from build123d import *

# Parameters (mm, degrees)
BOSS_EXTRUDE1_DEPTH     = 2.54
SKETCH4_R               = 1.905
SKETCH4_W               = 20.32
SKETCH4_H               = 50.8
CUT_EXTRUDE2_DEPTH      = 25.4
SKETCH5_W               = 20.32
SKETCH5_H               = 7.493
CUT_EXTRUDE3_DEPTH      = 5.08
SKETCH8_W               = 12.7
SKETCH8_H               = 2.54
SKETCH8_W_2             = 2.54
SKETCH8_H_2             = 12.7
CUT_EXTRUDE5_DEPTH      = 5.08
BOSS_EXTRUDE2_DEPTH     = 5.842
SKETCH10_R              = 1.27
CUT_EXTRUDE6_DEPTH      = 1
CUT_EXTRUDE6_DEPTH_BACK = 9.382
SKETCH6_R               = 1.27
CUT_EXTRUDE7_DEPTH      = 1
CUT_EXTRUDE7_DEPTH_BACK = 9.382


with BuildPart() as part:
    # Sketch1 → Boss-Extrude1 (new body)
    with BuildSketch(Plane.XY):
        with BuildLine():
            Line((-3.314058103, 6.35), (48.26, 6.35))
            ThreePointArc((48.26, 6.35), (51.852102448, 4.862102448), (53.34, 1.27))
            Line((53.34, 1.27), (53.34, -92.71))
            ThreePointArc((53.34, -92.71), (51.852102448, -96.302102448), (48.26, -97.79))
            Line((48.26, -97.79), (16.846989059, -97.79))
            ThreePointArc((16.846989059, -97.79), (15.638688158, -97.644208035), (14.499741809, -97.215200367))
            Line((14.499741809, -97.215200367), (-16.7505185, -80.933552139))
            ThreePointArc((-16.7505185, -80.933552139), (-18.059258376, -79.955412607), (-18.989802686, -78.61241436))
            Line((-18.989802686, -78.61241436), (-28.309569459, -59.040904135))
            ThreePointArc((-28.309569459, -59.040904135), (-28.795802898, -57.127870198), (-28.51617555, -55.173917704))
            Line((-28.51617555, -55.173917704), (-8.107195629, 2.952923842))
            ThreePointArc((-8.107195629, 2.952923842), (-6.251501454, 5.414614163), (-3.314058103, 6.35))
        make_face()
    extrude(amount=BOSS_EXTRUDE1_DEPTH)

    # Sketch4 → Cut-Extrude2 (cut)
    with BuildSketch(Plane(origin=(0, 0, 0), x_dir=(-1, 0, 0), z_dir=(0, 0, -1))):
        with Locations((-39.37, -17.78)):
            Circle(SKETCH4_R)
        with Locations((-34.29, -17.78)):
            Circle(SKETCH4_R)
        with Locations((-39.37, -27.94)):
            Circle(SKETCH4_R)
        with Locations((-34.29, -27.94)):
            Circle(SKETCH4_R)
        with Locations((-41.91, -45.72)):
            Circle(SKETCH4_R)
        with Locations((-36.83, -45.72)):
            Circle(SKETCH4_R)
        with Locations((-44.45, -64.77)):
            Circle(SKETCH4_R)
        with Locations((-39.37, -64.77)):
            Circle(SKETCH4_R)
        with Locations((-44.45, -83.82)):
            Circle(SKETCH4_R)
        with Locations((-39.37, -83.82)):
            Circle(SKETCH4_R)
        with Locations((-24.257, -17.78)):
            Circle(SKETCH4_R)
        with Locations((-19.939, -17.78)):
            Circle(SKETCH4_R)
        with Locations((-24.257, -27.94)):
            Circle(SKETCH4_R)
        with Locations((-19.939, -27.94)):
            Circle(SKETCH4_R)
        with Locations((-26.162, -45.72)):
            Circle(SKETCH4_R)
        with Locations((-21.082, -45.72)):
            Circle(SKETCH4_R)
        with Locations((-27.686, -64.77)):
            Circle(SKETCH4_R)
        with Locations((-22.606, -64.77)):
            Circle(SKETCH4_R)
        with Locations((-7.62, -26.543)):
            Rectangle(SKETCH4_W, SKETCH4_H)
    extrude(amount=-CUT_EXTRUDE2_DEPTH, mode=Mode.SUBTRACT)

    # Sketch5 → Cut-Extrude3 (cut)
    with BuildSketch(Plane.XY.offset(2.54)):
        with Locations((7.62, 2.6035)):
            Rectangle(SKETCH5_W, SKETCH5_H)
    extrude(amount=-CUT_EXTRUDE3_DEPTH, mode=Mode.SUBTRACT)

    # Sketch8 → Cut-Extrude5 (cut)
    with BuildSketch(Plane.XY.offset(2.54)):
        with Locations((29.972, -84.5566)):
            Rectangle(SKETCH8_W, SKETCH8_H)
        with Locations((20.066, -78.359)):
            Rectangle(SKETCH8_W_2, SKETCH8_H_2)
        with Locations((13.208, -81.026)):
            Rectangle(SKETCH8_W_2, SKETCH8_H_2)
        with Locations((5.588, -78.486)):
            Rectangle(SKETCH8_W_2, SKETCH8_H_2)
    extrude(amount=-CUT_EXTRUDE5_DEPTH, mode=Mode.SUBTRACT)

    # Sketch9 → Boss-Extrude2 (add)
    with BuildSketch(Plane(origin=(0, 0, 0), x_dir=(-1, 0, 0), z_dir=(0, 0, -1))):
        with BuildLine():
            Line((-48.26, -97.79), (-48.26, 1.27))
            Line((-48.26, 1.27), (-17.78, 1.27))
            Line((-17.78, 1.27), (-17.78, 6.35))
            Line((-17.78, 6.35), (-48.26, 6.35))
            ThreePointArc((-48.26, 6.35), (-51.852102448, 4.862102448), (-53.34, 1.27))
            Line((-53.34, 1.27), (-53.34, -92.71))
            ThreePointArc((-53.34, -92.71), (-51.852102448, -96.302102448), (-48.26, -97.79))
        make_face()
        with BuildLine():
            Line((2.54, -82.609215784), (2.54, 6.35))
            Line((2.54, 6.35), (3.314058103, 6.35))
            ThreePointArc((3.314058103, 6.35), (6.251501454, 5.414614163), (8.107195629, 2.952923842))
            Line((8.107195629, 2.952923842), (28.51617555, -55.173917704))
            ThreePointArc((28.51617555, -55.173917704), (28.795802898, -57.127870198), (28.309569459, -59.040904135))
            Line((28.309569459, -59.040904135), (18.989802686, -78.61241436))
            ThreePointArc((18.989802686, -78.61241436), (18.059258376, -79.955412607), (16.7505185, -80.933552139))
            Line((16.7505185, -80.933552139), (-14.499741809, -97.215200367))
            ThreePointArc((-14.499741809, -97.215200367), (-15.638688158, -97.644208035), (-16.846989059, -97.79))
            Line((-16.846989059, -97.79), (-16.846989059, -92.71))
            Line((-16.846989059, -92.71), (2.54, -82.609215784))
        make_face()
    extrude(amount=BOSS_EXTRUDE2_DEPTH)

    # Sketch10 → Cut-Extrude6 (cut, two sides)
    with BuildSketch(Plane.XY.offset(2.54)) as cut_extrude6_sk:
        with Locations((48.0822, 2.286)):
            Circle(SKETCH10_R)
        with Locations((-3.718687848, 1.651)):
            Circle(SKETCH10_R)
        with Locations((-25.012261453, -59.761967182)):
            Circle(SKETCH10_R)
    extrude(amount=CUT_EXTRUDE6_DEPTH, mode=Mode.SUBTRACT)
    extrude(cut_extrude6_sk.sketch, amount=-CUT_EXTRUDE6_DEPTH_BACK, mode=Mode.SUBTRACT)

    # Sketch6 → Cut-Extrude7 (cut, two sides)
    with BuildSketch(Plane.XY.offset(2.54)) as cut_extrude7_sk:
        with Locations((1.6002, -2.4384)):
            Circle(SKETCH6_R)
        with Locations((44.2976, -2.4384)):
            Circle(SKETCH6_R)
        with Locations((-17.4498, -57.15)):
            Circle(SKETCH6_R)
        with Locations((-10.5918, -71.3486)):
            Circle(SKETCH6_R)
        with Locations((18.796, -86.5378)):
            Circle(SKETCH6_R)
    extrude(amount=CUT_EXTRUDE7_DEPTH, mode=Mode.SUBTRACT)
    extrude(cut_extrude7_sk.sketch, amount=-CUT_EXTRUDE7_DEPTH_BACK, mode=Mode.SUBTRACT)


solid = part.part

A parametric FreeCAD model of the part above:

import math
import FreeCAD as App
import Part
import Sketcher
from FreeCAD import Vector
Q = App.Units.Quantity

doc = App.newDocument("Part")
body = doc.addObject("PartDesign::Body", "Body")

# Sketch on XY plane
sketch1 = doc.addObject("Sketcher::SketchObject", "Sketch")
body.addObject(sketch1)
sketch1.AttachmentSupport = (doc.XY_Plane, [""])
sketch1.MapMode = "FlatFace"
sketch1.addGeometry([
    Part.LineSegment(Vector(48.26, 6.35, 0), Vector(-3.314058, 6.35, 0)),  # 0
    Part.ArcOfCircle(Part.Circle(Vector(-3.314058, 1.27, 0), Vector(0, 0, 1), 5.08), math.radians(90), math.radians(160.653259)),  # 1
    Part.LineSegment(Vector(-8.107196, 2.952924, 0), Vector(-28.516176, -55.173918, 0)),  # 2
    Part.ArcOfCircle(Part.Circle(Vector(-23.723038, -56.856842, 0), Vector(0, 0, 1), 5.08), math.radians(160.653259), math.radians(205.463345)),  # 3
    Part.LineSegment(Vector(-28.309569, -59.040904, 0), Vector(-18.989803, -78.612414, 0)),  # 4
    Part.ArcOfCircle(Part.Circle(Vector(-14.403271, -76.428352, 0), Vector(0, 0, 1), 5.08), math.radians(-154.536655), math.radians(-117.519892)),  # 5
    Part.LineSegment(Vector(-16.750518, -80.933552, 0), Vector(14.499742, -97.2152, 0)),  # 6
    Part.ArcOfCircle(Part.Circle(Vector(16.846989, -92.71, 0), Vector(0, 0, 1), 5.08), math.radians(-117.519892), math.radians(-90)),  # 7
    Part.LineSegment(Vector(16.846989, -97.79, 0), Vector(48.26, -97.79, 0)),  # 8
    Part.ArcOfCircle(Part.Circle(Vector(48.26, -92.71, 0), Vector(0, 0, 1), 5.08), math.radians(-90), math.radians(0)),  # 9
    Part.LineSegment(Vector(53.34, -92.71, 0), Vector(53.34, 1.27, 0)),  # 10
    Part.ArcOfCircle(Part.Circle(Vector(48.26, 1.27, 0), Vector(0, 0, 1), 5.08), math.radians(0), math.radians(90)),  # 11
], False)
sketch1.addConstraint([
    Sketcher.Constraint("Tangent", 0, 2, 1, 1),
    Sketcher.Constraint("Tangent", 1, 2, 2, 1),
    Sketcher.Constraint("Tangent", 2, 2, 3, 1),
    Sketcher.Constraint("Tangent", 3, 2, 4, 1),
    Sketcher.Constraint("Tangent", 4, 2, 5, 1),
    Sketcher.Constraint("Tangent", 5, 2, 6, 1),
    Sketcher.Constraint("Tangent", 6, 2, 7, 1),
    Sketcher.Constraint("Tangent", 7, 2, 8, 1),
    Sketcher.Constraint("Tangent", 8, 2, 9, 1),
    Sketcher.Constraint("Tangent", 9, 2, 10, 1),
    Sketcher.Constraint("Tangent", 10, 2, 11, 1),
    Sketcher.Constraint("Tangent", 11, 2, 0, 1),
    Sketcher.Constraint("Horizontal", 0),
    Sketcher.Constraint("Horizontal", 8),
    Sketcher.Constraint("Vertical", 10),
    Sketcher.Constraint("Equal", 1, 3),
    Sketcher.Constraint("Equal", 3, 5),
    Sketcher.Constraint("Equal", 5, 7),
    Sketcher.Constraint("Equal", 7, 9),
    Sketcher.Constraint("Equal", 9, 11),
    Sketcher.Constraint("Radius", 1, Q("0.2 in")),
    Sketcher.Constraint("DistanceY", 10, 1, 10, 2, Q("3.7 in")),
    Sketcher.Constraint("DistanceX", -1, 1, 9, 3, Q("1.9 in")),
    Sketcher.Constraint("DistanceY", -1, 1, 1, 3, Q("0.05 in")),
    Sketcher.Constraint("DistanceX", 0, 2, 0, 1, 51.574058),
    Sketcher.Constraint("DistanceX", 8, 1, 8, 2, 31.413011),
    Sketcher.Constraint("DistanceY", 6, 2, -1, 1, 97.2152),
    Sketcher.Constraint("DistanceX", 3, 2, 5, 3, 13.906298),
    Sketcher.Constraint("Distance", 2, 61.60565),
    Sketcher.Constraint("Distance", 6, 35.23735),
])
pad1 = doc.addObject("PartDesign::Pad", "Pad")
body.addObject(pad1)
pad1.Profile = sketch1
pad1.Length = Q("0.1 in")

# Sketch on XY plane
sketch2 = doc.addObject("Sketcher::SketchObject", "Sketch001")
body.addObject(sketch2)
sketch2.AttachmentSupport = (doc.XY_Plane, [""])
sketch2.MapMode = "FlatFace"
sketch2.addGeometry([
    Part.Circle(Vector(39.37, -17.78, 0), Vector(0, 0, 1), 1.905),  # 0
    Part.Circle(Vector(34.29, -17.78, 0), Vector(0, 0, 1), 1.905),  # 1
    Part.Circle(Vector(39.37, -27.94, 0), Vector(0, 0, 1), 1.905),  # 2
    Part.Circle(Vector(34.29, -27.94, 0), Vector(0, 0, 1), 1.905),  # 3
    Part.Circle(Vector(41.91, -45.72, 0), Vector(0, 0, 1), 1.905),  # 4
    Part.Circle(Vector(36.83, -45.72, 0), Vector(0, 0, 1), 1.905),  # 5
    Part.Circle(Vector(44.45, -64.77, 0), Vector(0, 0, 1), 1.905),  # 6
    Part.Circle(Vector(39.37, -64.77, 0), Vector(0, 0, 1), 1.905),  # 7
    Part.Circle(Vector(44.45, -83.82, 0), Vector(0, 0, 1), 1.905),  # 8
    Part.Circle(Vector(39.37, -83.82, 0), Vector(0, 0, 1), 1.905),  # 9
    Part.Circle(Vector(24.257, -17.78, 0), Vector(0, 0, 1), 1.905),  # 10
    Part.Circle(Vector(19.939, -17.78, 0), Vector(0, 0, 1), 1.905),  # 11
    Part.Circle(Vector(24.257, -27.94, 0), Vector(0, 0, 1), 1.905),  # 12
    Part.Circle(Vector(19.939, -27.94, 0), Vector(0, 0, 1), 1.905),  # 13
    Part.Circle(Vector(26.162, -45.72, 0), Vector(0, 0, 1), 1.905),  # 14
    Part.Circle(Vector(21.082, -45.72, 0), Vector(0, 0, 1), 1.905),  # 15
    Part.Circle(Vector(27.686, -64.77, 0), Vector(0, 0, 1), 1.905),  # 16
    Part.Circle(Vector(22.606, -64.77, 0), Vector(0, 0, 1), 1.905),  # 17
    Part.LineSegment(Vector(17.78, -1.143, 0), Vector(17.78, -51.943, 0)),  # 18
    Part.LineSegment(Vector(17.78, -51.943, 0), Vector(-2.54, -51.943, 0)),  # 19
    Part.LineSegment(Vector(-2.54, -51.943, 0), Vector(-2.54, -1.143, 0)),  # 20
    Part.LineSegment(Vector(-2.54, -1.143, 0), Vector(17.78, -1.143, 0)),  # 21
], False)
sketch2.addConstraint([
    Sketcher.Constraint("Coincident", 18, 2, 19, 1),
    Sketcher.Constraint("Coincident", 19, 2, 20, 1),
    Sketcher.Constraint("Coincident", 20, 2, 21, 1),
    Sketcher.Constraint("Coincident", 21, 2, 18, 1),
    Sketcher.Constraint("Vertical", 18),
    Sketcher.Constraint("Horizontal", 19),
    Sketcher.Constraint("Vertical", 20),
    Sketcher.Constraint("Horizontal", 21),
    Sketcher.Constraint("Equal", 0, 1),
    Sketcher.Constraint("Equal", 1, 2),
    Sketcher.Constraint("Equal", 2, 3),
    Sketcher.Constraint("Equal", 3, 4),
    Sketcher.Constraint("Equal", 4, 5),
    Sketcher.Constraint("Equal", 5, 6),
    Sketcher.Constraint("Equal", 6, 7),
    Sketcher.Constraint("Equal", 7, 8),
    Sketcher.Constraint("Equal", 8, 9),
    Sketcher.Constraint("Equal", 9, 10),
    Sketcher.Constraint("Equal", 10, 11),
    Sketcher.Constraint("Equal", 11, 12),
    Sketcher.Constraint("Equal", 12, 13),
    Sketcher.Constraint("Equal", 13, 14),
    Sketcher.Constraint("Equal", 14, 15),
    Sketcher.Constraint("Equal", 15, 16),
    Sketcher.Constraint("Equal", 16, 17),
    Sketcher.Constraint("Horizontal", 0, 3, 1, 3),
    Sketcher.Constraint("Horizontal", 2, 3, 3, 3),
    Sketcher.Constraint("Horizontal", 4, 3, 5, 3),
    Sketcher.Constraint("Horizontal", 6, 3, 7, 3),
    Sketcher.Constraint("Horizontal", 8, 3, 9, 3),
    Sketcher.Constraint("Horizontal", 1, 3, 10, 3),
    Sketcher.Constraint("Horizontal", 10, 3, 11, 3),
    Sketcher.Constraint("Horizontal", 3, 3, 12, 3),
    Sketcher.Constraint("Horizontal", 12, 3, 13, 3),
    Sketcher.Constraint("Horizontal", 5, 3, 14, 3),
    Sketcher.Constraint("Horizontal", 14, 3, 15, 3),
    Sketcher.Constraint("Horizontal", 7, 3, 16, 3),
    Sketcher.Constraint("Horizontal", 16, 3, 17, 3),
    Sketcher.Constraint("Vertical", 0, 3, 2, 3),
    Sketcher.Constraint("Vertical", 1, 3, 3, 3),
    Sketcher.Constraint("Vertical", 2, 3, 7, 3),
    Sketcher.Constraint("Vertical", 6, 3, 8, 3),
    Sketcher.Constraint("Vertical", 7, 3, 9, 3),
    Sketcher.Constraint("Vertical", 10, 3, 12, 3),
    Sketcher.Constraint("Vertical", 11, 3, 13, 3),
    Sketcher.Constraint("Diameter", 0, Q("0.15 in")),
    Sketcher.Constraint("DistanceY", 18, 2, 18, 1, Q("2 in")),
    Sketcher.Constraint("DistanceX", 19, 2, 19, 1, Q("0.8 in")),
    Sketcher.Constraint("DistanceY", 0, 3, -1, 1, Q("0.7 in")),
    Sketcher.Constraint("DistanceY", 2, 3, -1, 1, Q("1.1 in")),
    Sketcher.Constraint("DistanceY", 4, 3, -1, 1, Q("1.8 in")),
    Sketcher.Constraint("DistanceY", 8, 3, -1, 1, Q("3.3 in")),
    Sketcher.Constraint("DistanceX", -1, 1, 18, 2, Q("0.7 in")),
    Sketcher.Constraint("DistanceX", 1, 3, 0, 3, Q("0.2 in")),
    Sketcher.Constraint("DistanceX", 2, 3, 4, 3, Q("0.1 in")),
    Sketcher.Constraint("DistanceX", 5, 3, 4, 3, Q("0.2 in")),
    Sketcher.Constraint("DistanceX", 4, 3, 6, 3, Q("0.1 in")),
    Sketcher.Constraint("DistanceX", 15, 3, 14, 3, Q("0.2 in")),
    Sketcher.Constraint("DistanceX", 17, 3, 16, 3, Q("0.2 in")),
    Sketcher.Constraint("DistanceX", -1, 1, 0, 3, Q("1.55 in")),
    Sketcher.Constraint("DistanceY", 6, 3, -1, 1, Q("2.55 in")),
    Sketcher.Constraint("DistanceX", -1, 1, 14, 3, Q("1.03 in")),
    Sketcher.Constraint("DistanceX", -1, 1, 16, 3, Q("1.09 in")),
    Sketcher.Constraint("DistanceX", 11, 3, 10, 3, Q("0.17 in")),
    Sketcher.Constraint("DistanceX", -1, 1, 10, 3, Q("0.955 in")),
    Sketcher.Constraint("DistanceY", 18, 2, -1, 1, Q("2.045 in")),
])
pocket1 = doc.addObject("PartDesign::Pocket", "Pocket")
body.addObject(pocket1)
pocket1.Profile = sketch2
pocket1.Length = Q("1 in")
pocket1.Reversed = True

# Sketch on XY plane
sketch3 = doc.addObject("Sketcher::SketchObject", "Sketch002")
body.addObject(sketch3)
sketch3.AttachmentSupport = (doc.XY_Plane, [""])
sketch3.MapMode = "FlatFace"
sketch3.AttachmentOffset = App.Placement(Vector(0, 0, 0.1 * 25.4), App.Rotation())
sketch3.addGeometry([
    Part.LineSegment(Vector(-2.54, 6.35, 0), Vector(-2.54, -1.143, 0)),
    Part.LineSegment(Vector(-2.54, -1.143, 0), Vector(17.78, -1.143, 0)),
    Part.LineSegment(Vector(17.78, -1.143, 0), Vector(17.78, 6.35, 0)),
    Part.LineSegment(Vector(17.78, 6.35, 0), Vector(-2.54, 6.35, 0)),
], False)
sketch3.addConstraint([
    Sketcher.Constraint("Coincident", 0, 2, 1, 1),
    Sketcher.Constraint("Coincident", 1, 2, 2, 1),
    Sketcher.Constraint("Coincident", 2, 2, 3, 1),
    Sketcher.Constraint("Coincident", 3, 2, 0, 1),
    Sketcher.Constraint("Vertical", 0),
    Sketcher.Constraint("Horizontal", 1),
    Sketcher.Constraint("Vertical", 2),
    Sketcher.Constraint("Horizontal", 3),
    Sketcher.Constraint("DistanceX", 1, 1, 1, 2, Q("0.8 in")),
    Sketcher.Constraint("DistanceX", 0, 2, -1, 1, Q("0.1 in")),
    Sketcher.Constraint("DistanceY", 0, 2, 0, 1, Q("0.295 in")),
    Sketcher.Constraint("DistanceY", -1, 1, 2, 2, Q("0.25 in")),
])
pocket2 = doc.addObject("PartDesign::Pocket", "Pocket001")
body.addObject(pocket2)
pocket2.Profile = sketch3
pocket2.Length = Q("0.2 in")

# Sketch on XY plane
sketch4 = doc.addObject("Sketcher::SketchObject", "Sketch003")
body.addObject(sketch4)
sketch4.AttachmentSupport = (doc.XY_Plane, [""])
sketch4.MapMode = "FlatFace"
sketch4.AttachmentOffset = App.Placement(Vector(0, 0, 0.1 * 25.4), App.Rotation())
sketch4.addGeometry([
    Part.LineSegment(Vector(23.622, -83.2866, 0), Vector(23.622, -85.8266, 0)),  # 0
    Part.LineSegment(Vector(23.622, -85.8266, 0), Vector(36.322, -85.8266, 0)),  # 1
    Part.LineSegment(Vector(36.322, -85.8266, 0), Vector(36.322, -83.2866, 0)),  # 2
    Part.LineSegment(Vector(36.322, -83.2866, 0), Vector(23.622, -83.2866, 0)),  # 3
    Part.LineSegment(Vector(18.796, -72.009, 0), Vector(18.796, -84.709, 0)),  # 4
    Part.LineSegment(Vector(18.796, -84.709, 0), Vector(21.336, -84.709, 0)),  # 5
    Part.LineSegment(Vector(21.336, -84.709, 0), Vector(21.336, -72.009, 0)),  # 6
    Part.LineSegment(Vector(21.336, -72.009, 0), Vector(18.796, -72.009, 0)),  # 7
    Part.LineSegment(Vector(11.938, -74.676, 0), Vector(11.938, -87.376, 0)),  # 8
    Part.LineSegment(Vector(11.938, -87.376, 0), Vector(14.478, -87.376, 0)),  # 9
    Part.LineSegment(Vector(14.478, -87.376, 0), Vector(14.478, -74.676, 0)),  # 10
    Part.LineSegment(Vector(14.478, -74.676, 0), Vector(11.938, -74.676, 0)),  # 11
    Part.LineSegment(Vector(4.318, -72.136, 0), Vector(4.318, -84.836, 0)),  # 12
    Part.LineSegment(Vector(4.318, -84.836, 0), Vector(6.858, -84.836, 0)),  # 13
    Part.LineSegment(Vector(6.858, -84.836, 0), Vector(6.858, -72.136, 0)),  # 14
    Part.LineSegment(Vector(6.858, -72.136, 0), Vector(4.318, -72.136, 0)),  # 15
], False)
sketch4.addConstraint([
    Sketcher.Constraint("Coincident", 0, 2, 1, 1),
    Sketcher.Constraint("Coincident", 1, 2, 2, 1),
    Sketcher.Constraint("Coincident", 2, 2, 3, 1),
    Sketcher.Constraint("Coincident", 3, 2, 0, 1),
    Sketcher.Constraint("Coincident", 4, 2, 5, 1),
    Sketcher.Constraint("Coincident", 5, 2, 6, 1),
    Sketcher.Constraint("Coincident", 6, 2, 7, 1),
    Sketcher.Constraint("Coincident", 7, 2, 4, 1),
    Sketcher.Constraint("Coincident", 8, 2, 9, 1),
    Sketcher.Constraint("Coincident", 9, 2, 10, 1),
    Sketcher.Constraint("Coincident", 10, 2, 11, 1),
    Sketcher.Constraint("Coincident", 11, 2, 8, 1),
    Sketcher.Constraint("Coincident", 12, 2, 13, 1),
    Sketcher.Constraint("Coincident", 13, 2, 14, 1),
    Sketcher.Constraint("Coincident", 14, 2, 15, 1),
    Sketcher.Constraint("Coincident", 15, 2, 12, 1),
    Sketcher.Constraint("Vertical", 0),
    Sketcher.Constraint("Horizontal", 1),
    Sketcher.Constraint("Vertical", 2),
    Sketcher.Constraint("Horizontal", 3),
    Sketcher.Constraint("Vertical", 4),
    Sketcher.Constraint("Horizontal", 5),
    Sketcher.Constraint("Vertical", 6),
    Sketcher.Constraint("Horizontal", 7),
    Sketcher.Constraint("Vertical", 8),
    Sketcher.Constraint("Horizontal", 9),
    Sketcher.Constraint("Vertical", 10),
    Sketcher.Constraint("Horizontal", 11),
    Sketcher.Constraint("Vertical", 12),
    Sketcher.Constraint("Horizontal", 13),
    Sketcher.Constraint("Vertical", 14),
    Sketcher.Constraint("Horizontal", 15),
    Sketcher.Constraint("Equal", 7, 9),
    Sketcher.Constraint("Equal", 11, 13),
    Sketcher.Constraint("Equal", 15, 0),
    Sketcher.Constraint("Equal", 3, 4),
    Sketcher.Constraint("Equal", 6, 8),
    Sketcher.Constraint("Equal", 10, 12),
    Sketcher.Constraint("DistanceX", 1, 1, 1, 2, Q("0.5 in")),
    Sketcher.Constraint("DistanceX", 5, 1, 5, 2, Q("0.1 in")),
    Sketcher.Constraint("DistanceX", 12, 2, 8, 2, Q("0.3 in")),
    Sketcher.Constraint("DistanceY", 8, 2, 12, 2, Q("0.1 in")),
    Sketcher.Constraint("DistanceX", -1, 1, 0, 2, Q("0.93 in")),
    Sketcher.Constraint("DistanceX", -1, 1, 4, 2, Q("0.74 in")),
    Sketcher.Constraint("DistanceX", -1, 1, 8, 2, Q("0.47 in")),
    Sketcher.Constraint("DistanceY", 8, 2, -1, 1, Q("3.44 in")),
    Sketcher.Constraint("DistanceY", 0, 2, -1, 1, Q("3.379 in")),
    Sketcher.Constraint("DistanceY", 4, 2, -1, 1, Q("3.335 in")),
])
pocket3 = doc.addObject("PartDesign::Pocket", "Pocket002")
body.addObject(pocket3)
pocket3.Profile = sketch4
pocket3.Length = Q("0.2 in")

# Sketch on XY plane
sketch5 = doc.addObject("Sketcher::SketchObject", "Sketch004")
body.addObject(sketch5)
sketch5.AttachmentSupport = (doc.XY_Plane, [""])
sketch5.MapMode = "FlatFace"
sketch5.addGeometry([
    Part.LineSegment(Vector(48.26, -97.79, 0), Vector(48.26, 1.27, 0)),  # 0
    Part.LineSegment(Vector(48.26, 1.27, 0), Vector(17.78, 1.27, 0)),  # 1
    Part.LineSegment(Vector(17.78, 1.27, 0), Vector(17.78, 6.35, 0)),  # 2
    Part.LineSegment(Vector(17.78, 6.35, 0), Vector(48.26, 6.35, 0)),  # 3
    Part.ArcOfCircle(Part.Circle(Vector(48.26, 1.27, 0), Vector(0, 0, 1), 5.08), math.radians(0), math.radians(90)),  # 4
    Part.LineSegment(Vector(53.34, 1.27, 0), Vector(53.34, -92.71, 0)),  # 5
    Part.ArcOfCircle(Part.Circle(Vector(48.26, -92.71, 0), Vector(0, 0, 1), 5.08), math.radians(-90), math.radians(0)),  # 6
    Part.LineSegment(Vector(-2.54, 6.35, 0), Vector(-2.54, -82.609216, 0)),  # 7
    Part.LineSegment(Vector(-2.54, -82.609216, 0), Vector(16.846989, -92.71, 0)),  # 8
    Part.LineSegment(Vector(16.846989, -92.71, 0), Vector(16.846989, -97.79, 0)),  # 9
    Part.ArcOfCircle(Part.Circle(Vector(16.846989, -92.71, 0), Vector(0, 0, 1), 5.08), math.radians(-117.519892), math.radians(-90)),  # 10
    Part.LineSegment(Vector(14.499742, -97.2152, 0), Vector(-16.750518, -80.933552, 0)),  # 11
    Part.ArcOfCircle(Part.Circle(Vector(-14.403271, -76.428352, 0), Vector(0, 0, 1), 5.08), math.radians(-154.536655), math.radians(-117.519892)),  # 12
    Part.LineSegment(Vector(-18.989803, -78.612414, 0), Vector(-28.309569, -59.040904, 0)),  # 13
    Part.ArcOfCircle(Part.Circle(Vector(-23.723038, -56.856842, 0), Vector(0, 0, 1), 5.08), math.radians(160.653259), math.radians(205.463345)),  # 14
    Part.LineSegment(Vector(-28.516176, -55.173918, 0), Vector(-8.107196, 2.952924, 0)),  # 15
    Part.ArcOfCircle(Part.Circle(Vector(-3.314058, 1.27, 0), Vector(0, 0, 1), 5.08), math.radians(90), math.radians(160.653259)),  # 16
    Part.LineSegment(Vector(-3.314058, 6.35, 0), Vector(-2.54, 6.35, 0)),  # 17
], False)
sketch5.addConstraint([
    Sketcher.Constraint("Coincident", 0, 2, 1, 1),
    Sketcher.Constraint("Coincident", 1, 2, 2, 1),
    Sketcher.Constraint("Coincident", 2, 2, 3, 1),
    Sketcher.Constraint("Tangent", 3, 2, 4, 2),
    Sketcher.Constraint("Tangent", 4, 1, 5, 1),
    Sketcher.Constraint("Tangent", 5, 2, 6, 2),
    Sketcher.Constraint("Coincident", 6, 1, 0, 1),
    Sketcher.Constraint("Coincident", 7, 2, 8, 1),
    Sketcher.Constraint("Coincident", 8, 2, 9, 1),
    Sketcher.Constraint("Coincident", 9, 2, 10, 2),
    Sketcher.Constraint("Tangent", 10, 1, 11, 1),
    Sketcher.Constraint("Tangent", 11, 2, 12, 2),
    Sketcher.Constraint("Tangent", 12, 1, 13, 1),
    Sketcher.Constraint("Tangent", 13, 2, 14, 2),
    Sketcher.Constraint("Tangent", 14, 1, 15, 1),
    Sketcher.Constraint("Tangent", 15, 2, 16, 2),
    Sketcher.Constraint("Tangent", 16, 1, 17, 1),
    Sketcher.Constraint("Coincident", 17, 2, 7, 1),
    Sketcher.Constraint("Vertical", 0),
    Sketcher.Constraint("Horizontal", 1),
    Sketcher.Constraint("Vertical", 2),
    Sketcher.Constraint("Horizontal", 3),
    Sketcher.Constraint("Vertical", 5),
    Sketcher.Constraint("Vertical", 7),
    Sketcher.Constraint("Vertical", 9),
    Sketcher.Constraint("Horizontal", 17),
    Sketcher.Constraint("Coincident", 0, 2, 4, 3),
    Sketcher.Constraint("Coincident", 8, 2, 10, 3),
    Sketcher.Constraint("Equal", 4, 6),
    Sketcher.Constraint("Equal", 6, 10),
    Sketcher.Constraint("Equal", 10, 12),
    Sketcher.Constraint("Equal", 12, 14),
    Sketcher.Constraint("Equal", 14, 16),
    Sketcher.Constraint("Parallel", 8, 11),
    Sketcher.Constraint("Horizontal", 6, 3, 10, 3),
    Sketcher.Constraint("Horizontal", 4, 3, 16, 3),
    Sketcher.Constraint("Radius", 4, Q("0.2 in")),
    Sketcher.Constraint("DistanceX", 1, 2, 1, 1, Q("1.2 in")),
    Sketcher.Constraint("DistanceY", 0, 1, 0, 2, Q("3.9 in")),
    Sketcher.Constraint("DistanceX", 7, 2, 6, 3, Q("2 in")),
    Sketcher.Constraint("DistanceX", -1, 1, 4, 3, Q("1.9 in")),
    Sketcher.Constraint("DistanceY", -1, 1, 4, 3, Q("0.05 in")),
    Sketcher.Constraint("DistanceX", 17, 1, 17, 2, 0.774058),
    Sketcher.Constraint("DistanceY", 10, 1, -1, 1, 97.2152),
    Sketcher.Constraint("DistanceY", 7, 2, 12, 1, 3.996801),
    Sketcher.Constraint("DistanceX", 13, 2, 12, 3, 13.906298),
    Sketcher.Constraint("Distance", 11, 35.23735),
    Sketcher.Constraint("Distance", 15, 61.60565),
])
pad2 = doc.addObject("PartDesign::Pad", "Pad001")
body.addObject(pad2)
pad2.Profile = sketch5
pad2.Length = Q("0.23 in")
pad2.Reversed = True

# Sketch on XY plane
sketch6 = doc.addObject("Sketcher::SketchObject", "Sketch005")
body.addObject(sketch6)
sketch6.AttachmentSupport = (doc.XY_Plane, [""])
sketch6.MapMode = "FlatFace"
sketch6.AttachmentOffset = App.Placement(Vector(0, 0, 0.1 * 25.4), App.Rotation())
sketch6.addGeometry([
    Part.Circle(Vector(48.0822, 2.286, 0), Vector(0, 0, 1), 1.27),
    Part.Circle(Vector(-3.718688, 1.651, 0), Vector(0, 0, 1), 1.27),
    Part.Circle(Vector(-25.012261, -59.761967, 0), Vector(0, 0, 1), 1.27),
], False)
sketch6.addConstraint([
    Sketcher.Constraint("Equal", 0, 1),
    Sketcher.Constraint("Equal", 1, 2),
    Sketcher.Constraint("Diameter", 0, Q("0.1 in")),
    Sketcher.Constraint("DistanceY", -1, 1, 0, 3, Q("0.09 in")),
    Sketcher.Constraint("DistanceX", -1, 1, 0, 3, Q("1.893 in")),
    Sketcher.Constraint("DistanceY", -1, 1, 1, 3, Q("0.065 in")),
    Sketcher.Constraint("DistanceX", 2, 3, -1, 1, 25.012261),
    Sketcher.Constraint("DistanceX", 1, 3, -1, 1, 3.718688),
    Sketcher.Constraint("DistanceY", 2, 3, -1, 1, 59.761967),
])
pocket4 = doc.addObject("PartDesign::Pocket", "Pocket003")
body.addObject(pocket4)
pocket4.Profile = sketch6
pocket4.Type = "ThroughAll"
pocket4.Midplane = True

# Sketch on XY plane
sketch7 = doc.addObject("Sketcher::SketchObject", "Sketch006")
body.addObject(sketch7)
sketch7.AttachmentSupport = (doc.XY_Plane, [""])
sketch7.MapMode = "FlatFace"
sketch7.AttachmentOffset = App.Placement(Vector(0, 0, 0.1 * 25.4), App.Rotation())
sketch7.addGeometry([
    Part.Circle(Vector(1.6002, -2.4384, 0), Vector(0, 0, 1), 1.27),  # 0
    Part.Circle(Vector(44.2976, -2.4384, 0), Vector(0, 0, 1), 1.27),  # 1
    Part.Circle(Vector(-17.4498, -57.15, 0), Vector(0, 0, 1), 1.27),  # 2
    Part.Circle(Vector(-10.5918, -71.3486, 0), Vector(0, 0, 1), 1.27),  # 3
    Part.Circle(Vector(18.796, -86.5378, 0), Vector(0, 0, 1), 1.27),  # 4
], False)
sketch7.addConstraint([
    Sketcher.Constraint("Equal", 0, 1),
    Sketcher.Constraint("Equal", 1, 2),
    Sketcher.Constraint("Equal", 2, 3),
    Sketcher.Constraint("Equal", 3, 4),
    Sketcher.Constraint("Horizontal", 0, 3, 1, 3),
    Sketcher.Constraint("Diameter", 0, Q("0.1 in")),
    Sketcher.Constraint("DistanceY", 2, 3, -1, 1, Q("2.25 in")),
    Sketcher.Constraint("DistanceX", -1, 1, 4, 3, Q("0.74 in")),
    Sketcher.Constraint("DistanceX", 2, 3, 0, 3, Q("0.75 in")),
    Sketcher.Constraint("DistanceX", 2, 3, 3, 3, Q("0.27 in")),
    Sketcher.Constraint("DistanceX", -1, 1, 0, 3, Q("0.063 in")),
    Sketcher.Constraint("DistanceY", 0, 3, -1, 1, Q("0.096 in")),
    Sketcher.Constraint("DistanceX", -1, 1, 1, 3, Q("1.744 in")),
    Sketcher.Constraint("DistanceY", 3, 3, -1, 1, Q("2.809 in")),
    Sketcher.Constraint("DistanceY", 4, 3, -1, 1, Q("3.407 in")),
])
pocket5 = doc.addObject("PartDesign::Pocket", "Pocket004")
body.addObject(pocket5)
pocket5.Profile = sketch7
pocket5.Type = "ThroughAll"
pocket5.Midplane = True

doc.recompute()
